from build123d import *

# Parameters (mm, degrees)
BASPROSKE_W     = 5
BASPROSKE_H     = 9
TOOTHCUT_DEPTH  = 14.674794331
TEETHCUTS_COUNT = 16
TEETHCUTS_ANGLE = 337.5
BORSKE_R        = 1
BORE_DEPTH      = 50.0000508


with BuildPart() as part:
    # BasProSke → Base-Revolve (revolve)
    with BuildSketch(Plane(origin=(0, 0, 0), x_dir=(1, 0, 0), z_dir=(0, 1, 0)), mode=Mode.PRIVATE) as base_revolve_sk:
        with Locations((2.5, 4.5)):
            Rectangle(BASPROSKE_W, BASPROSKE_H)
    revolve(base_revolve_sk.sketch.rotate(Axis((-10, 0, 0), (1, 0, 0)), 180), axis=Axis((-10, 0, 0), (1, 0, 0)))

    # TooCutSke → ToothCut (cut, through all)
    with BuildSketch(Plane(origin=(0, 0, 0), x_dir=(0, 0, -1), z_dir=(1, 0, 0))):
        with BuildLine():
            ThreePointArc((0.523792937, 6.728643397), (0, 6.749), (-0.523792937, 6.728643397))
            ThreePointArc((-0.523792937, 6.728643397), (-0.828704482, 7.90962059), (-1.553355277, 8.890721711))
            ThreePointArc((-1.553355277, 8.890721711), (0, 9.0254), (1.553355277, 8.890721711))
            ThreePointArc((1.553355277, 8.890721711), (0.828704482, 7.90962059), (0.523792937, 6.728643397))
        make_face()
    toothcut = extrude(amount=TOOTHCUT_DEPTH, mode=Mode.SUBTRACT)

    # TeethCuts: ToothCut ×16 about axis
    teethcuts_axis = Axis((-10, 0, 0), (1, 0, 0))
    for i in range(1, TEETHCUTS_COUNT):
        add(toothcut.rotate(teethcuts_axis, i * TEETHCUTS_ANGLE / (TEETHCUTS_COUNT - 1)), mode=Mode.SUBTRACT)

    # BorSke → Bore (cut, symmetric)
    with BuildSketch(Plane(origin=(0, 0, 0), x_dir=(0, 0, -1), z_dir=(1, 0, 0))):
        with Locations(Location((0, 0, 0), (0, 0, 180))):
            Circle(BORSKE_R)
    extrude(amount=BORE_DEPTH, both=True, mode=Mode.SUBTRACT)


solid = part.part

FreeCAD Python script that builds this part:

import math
import FreeCAD as App
import Part
import Sketcher

V = App.Vector
Q = App.Units.Quantity


def add_polygon(sketch, points):
    """Adds a closed chain of lines whose ends are joined by coincident constraints."""
    first, n = sketch.GeometryCount, len(points)
    for a, b in zip(points, points[1:] + points[:1]):
        sketch.addGeometry(Part.LineSegment(App.Vector(*a, 0), App.Vector(*b, 0)), False)
    for i in range(n):
        sketch.addConstraint(Sketcher.Constraint("Coincident", first + i, 2, first + (i + 1) % n, 1))

doc = App.newDocument("Part")
body = doc.addObject("PartDesign::Body", "Body")

sketch1 = body.newObject("Sketcher::SketchObject", "Sketch")
sketch1.AttachmentSupport = (doc.getObject("XZ_Plane"), [""])
sketch1.MapMode = "FlatFace"
add_polygon(sketch1, [(0, -9), (0, 0), (5, 0), (5, -9)])
sketch1.addConstraint([
    Sketcher.Constraint("Vertical", 0),
    Sketcher.Constraint("Horizontal", 1),
    Sketcher.Constraint("Vertical", 2),
    Sketcher.Constraint("Horizontal", 3),
    Sketcher.Constraint("Coincident", 0, 2, -1, 1),
    Sketcher.Constraint("DistanceX", 1, 1, 1, 2, Q("5 mm")),
    Sketcher.Constraint("DistanceY", 0, 1, 0, 2, Q("9 mm")),
])
revolution = body.newObject("PartDesign::Revolution", "Revolution")
revolution.Profile = sketch1
revolution.ReferenceAxis = (sketch1, ["H_Axis"])
revolution.Angle = 360

sketch2 = body.newObject("Sketcher::SketchObject", "Sketch001")
sketch2.AttachmentSupport = (doc.getObject("YZ_Plane"), [""])
sketch2.MapMode = "FlatFace"
sketch2.addGeometry([
    Part.ArcOfCircle(Part.Circle(V(0, 0, 0), V(0, 0, 1), 6.7), math.radians(-4.45), math.radians(4.45)),
    Part.ArcOfCircle(Part.Circle(V(6.5, -3.7, 0), V(0, 0, 1), 3.2), math.radians(43), math.radians(87)),
    Part.ArcOfCircle(Part.Circle(V(0, 0, 0), V(0, 0, 1), 9), math.radians(-9.91), math.radians(9.91)),
    Part.ArcOfCircle(Part.Circle(V(6.5, 3.7, 0), V(0, 0, 1), 3.2), math.radians(-87), math.radians(-43)),
], False)
sketch2.addConstraint([
    Sketcher.Constraint("Coincident", 0, 1, 1, 2),
    Sketcher.Constraint("Coincident", 1, 1, 2, 1),
    Sketcher.Constraint("Coincident", 2, 2, 3, 2),
    Sketcher.Constraint("Coincident", 3, 1, 0, 2),
    Sketcher.Constraint("Coincident", 0, 3, -1, 1),
    Sketcher.Constraint("Coincident", 2, 3, -1, 1),
    Sketcher.Constraint("Equal", 1, 3),
    Sketcher.Constraint("Symmetric", 1, 3, 3, 3, -1),
    Sketcher.Constraint("Radius", 1, Q("3.2 mm")),
    Sketcher.Constraint("Radius", 0, Q("6.749 mm")),
    Sketcher.Constraint("Radius", 2, Q("9.0254 mm")),
    Sketcher.Constraint("DistanceX", -1, 1, 1, 3, Q("6.533832 mm")),
    Sketcher.Constraint("DistanceX", -1, 1, 1, 1, Q("8.890722 mm")),
])
pocket1 = body.newObject("PartDesign::Pocket", "Pocket")
pocket1.Profile = sketch2
pocket1.Type = "ThroughAll"
pocket1.Reversed = True
doc.recompute()

polarpattern = body.newObject("PartDesign::PolarPattern", "PolarPattern")
polarpattern.Originals = [pocket1]
polarpattern.Axis = (doc.getObject("X_Axis"), [""])
polarpattern.Angle = 360
polarpattern.Occurrences = 16
body.Tip = polarpattern

sketch3 = body.newObject("Sketcher::SketchObject", "Sketch002")
sketch3.AttachmentSupport = (doc.getObject("YZ_Plane"), [""])
sketch3.MapMode = "FlatFace"
sketch3.addGeometry(Part.Circle(V(0, 0, 0), V(0, 0, 1), 1), False)
sketch3.addConstraint([
    Sketcher.Constraint("Coincident", 0, 3, -1, 1),
    Sketcher.Constraint("Diameter", 0, Q("2 mm")),
])
pocket2 = body.newObject("PartDesign::Pocket", "Pocket001")
pocket2.Profile = sketch3
pocket2.Length = 100.000102
pocket2.Midplane = True

doc.recompute()
